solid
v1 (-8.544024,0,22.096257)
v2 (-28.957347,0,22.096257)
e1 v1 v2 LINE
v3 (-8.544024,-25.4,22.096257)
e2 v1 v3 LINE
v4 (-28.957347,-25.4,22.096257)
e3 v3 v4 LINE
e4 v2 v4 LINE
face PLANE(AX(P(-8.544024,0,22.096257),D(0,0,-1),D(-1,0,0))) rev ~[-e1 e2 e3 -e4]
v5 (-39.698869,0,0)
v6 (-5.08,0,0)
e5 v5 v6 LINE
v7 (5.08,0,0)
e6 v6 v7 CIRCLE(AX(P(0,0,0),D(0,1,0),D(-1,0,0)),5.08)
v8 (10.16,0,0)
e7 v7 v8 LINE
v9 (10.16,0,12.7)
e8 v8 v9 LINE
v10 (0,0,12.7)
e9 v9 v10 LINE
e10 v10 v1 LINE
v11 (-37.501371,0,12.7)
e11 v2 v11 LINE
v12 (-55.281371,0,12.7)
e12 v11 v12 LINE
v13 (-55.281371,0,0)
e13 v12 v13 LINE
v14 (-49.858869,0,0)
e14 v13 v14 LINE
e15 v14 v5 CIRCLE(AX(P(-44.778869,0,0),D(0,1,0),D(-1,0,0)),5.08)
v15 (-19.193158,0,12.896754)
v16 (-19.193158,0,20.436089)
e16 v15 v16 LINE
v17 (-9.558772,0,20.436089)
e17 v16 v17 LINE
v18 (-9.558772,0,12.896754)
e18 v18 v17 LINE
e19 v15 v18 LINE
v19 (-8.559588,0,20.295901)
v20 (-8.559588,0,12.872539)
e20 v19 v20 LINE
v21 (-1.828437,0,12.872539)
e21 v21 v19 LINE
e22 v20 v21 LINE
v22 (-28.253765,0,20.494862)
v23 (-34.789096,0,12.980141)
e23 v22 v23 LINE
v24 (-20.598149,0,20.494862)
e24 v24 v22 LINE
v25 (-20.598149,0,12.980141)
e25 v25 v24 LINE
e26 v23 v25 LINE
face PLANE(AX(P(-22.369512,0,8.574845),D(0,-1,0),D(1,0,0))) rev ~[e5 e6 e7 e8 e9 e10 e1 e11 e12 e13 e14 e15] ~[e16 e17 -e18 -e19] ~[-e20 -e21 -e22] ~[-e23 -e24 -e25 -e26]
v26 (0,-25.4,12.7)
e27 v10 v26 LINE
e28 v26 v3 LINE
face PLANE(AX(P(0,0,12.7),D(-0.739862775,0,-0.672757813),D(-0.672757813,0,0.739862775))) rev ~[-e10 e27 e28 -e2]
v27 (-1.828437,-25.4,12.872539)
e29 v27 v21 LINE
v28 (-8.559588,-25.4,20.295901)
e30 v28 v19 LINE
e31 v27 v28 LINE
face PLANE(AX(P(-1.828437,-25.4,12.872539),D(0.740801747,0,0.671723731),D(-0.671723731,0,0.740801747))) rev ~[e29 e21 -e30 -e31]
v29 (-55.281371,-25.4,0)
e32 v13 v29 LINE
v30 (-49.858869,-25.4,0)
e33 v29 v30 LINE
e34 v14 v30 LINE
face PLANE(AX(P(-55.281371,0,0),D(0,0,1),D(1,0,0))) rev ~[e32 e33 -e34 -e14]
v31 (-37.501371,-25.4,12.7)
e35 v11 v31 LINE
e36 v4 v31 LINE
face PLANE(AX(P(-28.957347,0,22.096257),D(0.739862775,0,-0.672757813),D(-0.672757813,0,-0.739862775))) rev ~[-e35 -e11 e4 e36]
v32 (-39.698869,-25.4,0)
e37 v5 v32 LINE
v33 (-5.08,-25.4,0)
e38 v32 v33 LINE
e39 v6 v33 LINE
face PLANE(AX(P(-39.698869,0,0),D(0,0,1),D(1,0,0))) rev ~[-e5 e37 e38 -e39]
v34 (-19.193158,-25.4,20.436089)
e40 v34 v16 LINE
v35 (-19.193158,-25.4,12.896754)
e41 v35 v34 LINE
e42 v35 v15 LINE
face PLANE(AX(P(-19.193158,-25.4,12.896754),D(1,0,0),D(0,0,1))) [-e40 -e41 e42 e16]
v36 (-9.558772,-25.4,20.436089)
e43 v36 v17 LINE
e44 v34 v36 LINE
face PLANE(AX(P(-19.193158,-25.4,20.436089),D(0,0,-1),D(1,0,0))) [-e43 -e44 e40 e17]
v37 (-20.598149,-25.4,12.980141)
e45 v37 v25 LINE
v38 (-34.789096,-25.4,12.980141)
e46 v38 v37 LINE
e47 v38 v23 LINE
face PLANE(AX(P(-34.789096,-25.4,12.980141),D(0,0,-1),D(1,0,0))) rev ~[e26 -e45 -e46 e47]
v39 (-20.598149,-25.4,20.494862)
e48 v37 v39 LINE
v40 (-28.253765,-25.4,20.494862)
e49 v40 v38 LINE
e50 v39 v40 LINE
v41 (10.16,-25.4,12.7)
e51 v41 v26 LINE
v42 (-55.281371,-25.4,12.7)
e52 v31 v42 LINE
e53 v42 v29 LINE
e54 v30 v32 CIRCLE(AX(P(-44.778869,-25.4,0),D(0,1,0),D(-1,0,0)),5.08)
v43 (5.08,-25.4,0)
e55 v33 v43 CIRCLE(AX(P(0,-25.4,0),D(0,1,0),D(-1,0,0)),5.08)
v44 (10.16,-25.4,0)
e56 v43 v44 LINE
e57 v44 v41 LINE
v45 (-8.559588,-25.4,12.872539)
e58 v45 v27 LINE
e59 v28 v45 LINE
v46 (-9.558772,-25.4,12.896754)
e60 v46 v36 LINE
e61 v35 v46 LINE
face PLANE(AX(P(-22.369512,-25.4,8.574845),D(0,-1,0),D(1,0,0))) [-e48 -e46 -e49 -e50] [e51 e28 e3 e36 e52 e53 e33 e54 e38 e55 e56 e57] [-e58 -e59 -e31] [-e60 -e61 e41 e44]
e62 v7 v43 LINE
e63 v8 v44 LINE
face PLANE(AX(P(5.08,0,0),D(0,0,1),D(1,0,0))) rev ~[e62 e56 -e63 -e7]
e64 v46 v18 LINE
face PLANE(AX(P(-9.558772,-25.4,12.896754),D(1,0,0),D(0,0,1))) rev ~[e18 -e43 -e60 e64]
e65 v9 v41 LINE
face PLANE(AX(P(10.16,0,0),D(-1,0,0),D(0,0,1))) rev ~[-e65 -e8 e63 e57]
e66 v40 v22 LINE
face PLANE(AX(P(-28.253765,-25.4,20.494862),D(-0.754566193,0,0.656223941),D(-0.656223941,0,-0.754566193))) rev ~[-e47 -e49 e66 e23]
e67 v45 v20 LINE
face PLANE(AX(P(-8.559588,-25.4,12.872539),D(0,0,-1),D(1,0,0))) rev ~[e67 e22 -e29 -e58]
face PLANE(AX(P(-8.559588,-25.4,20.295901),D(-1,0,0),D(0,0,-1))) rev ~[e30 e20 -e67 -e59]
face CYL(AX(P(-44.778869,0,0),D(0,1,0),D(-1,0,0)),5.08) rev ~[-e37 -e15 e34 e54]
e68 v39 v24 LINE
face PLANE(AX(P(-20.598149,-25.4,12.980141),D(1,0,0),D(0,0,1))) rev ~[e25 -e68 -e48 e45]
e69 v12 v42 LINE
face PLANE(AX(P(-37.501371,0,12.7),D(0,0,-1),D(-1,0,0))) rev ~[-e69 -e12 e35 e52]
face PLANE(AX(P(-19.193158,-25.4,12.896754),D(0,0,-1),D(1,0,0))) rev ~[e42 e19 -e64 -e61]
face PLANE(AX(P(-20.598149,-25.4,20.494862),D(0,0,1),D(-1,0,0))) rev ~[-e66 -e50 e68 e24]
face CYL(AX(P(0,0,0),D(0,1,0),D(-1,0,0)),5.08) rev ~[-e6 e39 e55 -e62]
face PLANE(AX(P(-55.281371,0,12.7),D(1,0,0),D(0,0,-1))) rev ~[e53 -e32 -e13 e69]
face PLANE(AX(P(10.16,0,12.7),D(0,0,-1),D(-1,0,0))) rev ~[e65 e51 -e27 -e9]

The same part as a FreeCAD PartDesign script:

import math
import FreeCAD as App
import Part
import Sketcher
Q = App.Units.Quantity

doc = App.newDocument("Part")
params = doc.addObject("Spreadsheet::Sheet", "Params")
for row, (alias, value) in enumerate([
    ("sketch1_radius", "0.2 in"),
    ("sketch1_width", "0.7 in"),
    ("sketch1_width2", "0.2 in"),
    ("sketch1_height", "0.5 in"),
    ("sketch1_length", "0.5 in"),
    ("pad1_length", "1 in"),
    ("pocket1_length", "1 in"),
    ("pocket2_length", "1 in"),
    ("pocket3_length", "1 in"),
], start=1):
    params.set(f"A{row}", alias)
    params.set(f"B{row}", "=" + value)
    params.setAlias(f"B{row}", alias)

body = doc.addObject("PartDesign::Body", "Body")

# Sketch on XZ plane
sketch1 = doc.addObject("Sketcher::SketchObject", "Sketch")
body.addObject(sketch1)
sketch1.AttachmentSupport = (doc.XZ_Plane, [""])
sketch1.MapMode = "FlatFace"
sketch1.addGeometry([
    Part.LineSegment(App.Vector(-38, 13, 0), App.Vector(-55, 13, 0)),  # 0
    Part.LineSegment(App.Vector(-55, 13, 0), App.Vector(-55, 0, 0)),  # 1
    Part.LineSegment(App.Vector(-55, 0, 0), App.Vector(-50, 0, 0)),  # 2
    Part.ArcOfCircle(Part.Circle(App.Vector(-45, 0, 0), App.Vector(0, 0, 1), 5), math.radians(0), math.radians(180)),  # 3
    Part.LineSegment(App.Vector(-40, 0, 0), App.Vector(-5, 0, 0)),  # 4
    Part.ArcOfCircle(Part.Circle(App.Vector(0, 0, 0), App.Vector(0, 0, 1), 5), math.radians(0), math.radians(180)),  # 5
    Part.LineSegment(App.Vector(5, 0, 0), App.Vector(10, 0, 0)),  # 6
    Part.LineSegment(App.Vector(10, 0, 0), App.Vector(10, 13, 0)),  # 7
    Part.LineSegment(App.Vector(10, 13, 0), App.Vector(0, 13, 0)),  # 8
    Part.LineSegment(App.Vector(0, 13, 0), App.Vector(-9, 22, 0)),  # 9
    Part.LineSegment(App.Vector(-9, 22, 0), App.Vector(-29, 22, 0)),  # 10
    Part.LineSegment(App.Vector(-29, 22, 0), App.Vector(-38, 13, 0)),  # 11
], False)
sketch1.addConstraint([
    Sketcher.Constraint("Coincident", 0, 2, 1, 1),
    Sketcher.Constraint("Coincident", 1, 2, 2, 1),
    Sketcher.Constraint("Coincident", 2, 2, 3, 2),
    Sketcher.Constraint("Coincident", 3, 1, 4, 1),
    Sketcher.Constraint("Coincident", 4, 2, 5, 2),
    Sketcher.Constraint("Coincident", 5, 1, 6, 1),
    Sketcher.Constraint("Coincident", 6, 2, 7, 1),
    Sketcher.Constraint("Coincident", 7, 2, 8, 1),
    Sketcher.Constraint("Coincident", 8, 2, 9, 1),
    Sketcher.Constraint("Coincident", 9, 2, 10, 1),
    Sketcher.Constraint("Coincident", 10, 2, 11, 1),
    Sketcher.Constraint("Coincident", 11, 2, 0, 1),
    Sketcher.Constraint("Horizontal", 0),
    Sketcher.Constraint("Vertical", 1),
    Sketcher.Constraint("Horizontal", 2),
    Sketcher.Constraint("Horizontal", 4),
    Sketcher.Constraint("Horizontal", 6),
    Sketcher.Constraint("Vertical", 7),
    Sketcher.Constraint("Horizontal", 8),
    Sketcher.Constraint("Horizontal", 10),
    Sketcher.Constraint("Coincident", 5, 3, -1, 1),
    Sketcher.Constraint("Equal", 3, 5),
    Sketcher.Constraint("PointOnObject", 3, 3, -1),
    Sketcher.Constraint("PointOnObject", 1, 2, -1),
    Sketcher.Constraint("PointOnObject", 3, 1, -1),
    Sketcher.Constraint("PointOnObject", 5, 1, -1),
    Sketcher.Constraint("PointOnObject", 8, 2, -2),
    Sketcher.Constraint("Horizontal", 0, 2, 7, 2),
    Sketcher.Constraint("Equal", 9, 11),
    Sketcher.Constraint("Radius", 3, Q("0.2 in")),
    Sketcher.Constraint("DistanceX", 0, 2, 0, 1, Q("0.7 in")),
    Sketcher.Constraint("DistanceX", 6, 1, 6, 2, Q("0.2 in")),
    Sketcher.Constraint("DistanceY", 1, 2, 1, 1, Q("0.5 in")),
    Sketcher.Constraint("Distance", 9, Q("0.5 in")),
    Sketcher.Constraint("DistanceX", 4, 1, 4, 2, 34.618869),
    Sketcher.Constraint("DistanceX", 1, 2, 3, 1, 15.582502),
    Sketcher.Constraint("DistanceX", 10, 2, 10, 1, 20.413323),
])
sketch1.setExpression("Constraints[29]", "Params.sketch1_radius")
sketch1.setExpression("Constraints[30]", "Params.sketch1_width")
sketch1.setExpression("Constraints[31]", "Params.sketch1_width2")
sketch1.setExpression("Constraints[32]", "Params.sketch1_height")
sketch1.setExpression("Constraints[33]", "Params.sketch1_length")
pad1 = doc.addObject("PartDesign::Pad", "Pad")
body.addObject(pad1)
pad1.Profile = sketch1
pad1.setExpression("Length", "Params.pad1_length")

# Sketch on XZ plane
sketch2 = doc.addObject("Sketcher::SketchObject", "Sketch001")
body.addObject(sketch2)
sketch2.AttachmentSupport = (doc.XZ_Plane, [""])
sketch2.MapMode = "FlatFace"
sketch2.AttachmentOffset = App.Placement(App.Vector(0, 0, 1 * 25.4), App.Rotation())
sketch2.addGeometry([
    Part.LineSegment(App.Vector(-28, 20, 0), App.Vector(-35, 13, 0)),
    Part.LineSegment(App.Vector(-35, 13, 0), App.Vector(-21, 13, 0)),
    Part.LineSegment(App.Vector(-21, 13, 0), App.Vector(-21, 20, 0)),
    Part.LineSegment(App.Vector(-21, 20, 0), App.Vector(-28, 20, 0)),
], False)
sketch2.addConstraint([
    Sketcher.Constraint("Coincident", 0, 2, 1, 1),
    Sketcher.Constraint("Coincident", 1, 2, 2, 1),
    Sketcher.Constraint("Coincident", 2, 2, 3, 1),
    Sketcher.Constraint("Coincident", 3, 2, 0, 1),
    Sketcher.Constraint("Horizontal", 1),
    Sketcher.Constraint("Vertical", 2),
    Sketcher.Constraint("Horizontal", 3),
    Sketcher.Constraint("DistanceY", 2, 1, 2, 2, 7.514721),
    Sketcher.Constraint("DistanceX", 1, 1, 1, 2, 14.190947),
    Sketcher.Constraint("DistanceX", 3, 2, 3, 1, 7.655616),
    Sketcher.Constraint("DistanceY", -1, 1, 0, 2, 12.980141),
    Sketcher.Constraint("DistanceX", 1, 2, -1, 1, 20.598149),
])
pocket1 = doc.addObject("PartDesign::Pocket", "Pocket")
body.addObject(pocket1)
pocket1.Profile = sketch2
pocket1.setExpression("Length", "Params.pocket1_length")

# Sketch on XZ plane
sketch3 = doc.addObject("Sketcher::SketchObject", "Sketch002")
body.addObject(sketch3)
sketch3.AttachmentSupport = (doc.XZ_Plane, [""])
sketch3.MapMode = "FlatFace"
sketch3.AttachmentOffset = App.Placement(App.Vector(0, 0, 1 * 25.4), App.Rotation())
sketch3.addGeometry([
    Part.LineSegment(App.Vector(-19, 20, 0), App.Vector(-19, 13, 0)),
    Part.LineSegment(App.Vector(-19, 13, 0), App.Vector(-10, 13, 0)),
    Part.LineSegment(App.Vector(-10, 13, 0), App.Vector(-10, 20, 0)),
    Part.LineSegment(App.Vector(-10, 20, 0), App.Vector(-19, 20, 0)),
], False)
sketch3.addConstraint([
    Sketcher.Constraint("Coincident", 0, 2, 1, 1),
    Sketcher.Constraint("Coincident", 1, 2, 2, 1),
    Sketcher.Constraint("Coincident", 2, 2, 3, 1),
    Sketcher.Constraint("Coincident", 3, 2, 0, 1),
    Sketcher.Constraint("Vertical", 0),
    Sketcher.Constraint("Horizontal", 1),
    Sketcher.Constraint("Vertical", 2),
    Sketcher.Constraint("Horizontal", 3),
    Sketcher.Constraint("DistanceX", 1, 1, 1, 2, 9.634385),
    Sketcher.Constraint("DistanceY", 0, 2, 0, 1, 7.539335),
    Sketcher.Constraint("DistanceY", -1, 1, 2, 2, 20.436089),
    Sketcher.Constraint("DistanceX", 0, 2, -1, 1, 19.193158),
])
pocket2 = doc.addObject("PartDesign::Pocket", "Pocket001")
body.addObject(pocket2)
pocket2.Profile = sketch3
pocket2.setExpression("Length", "Params.pocket2_length")

# Sketch on XZ plane
sketch4 = doc.addObject("Sketcher::SketchObject", "Sketch003")
body.addObject(sketch4)
sketch4.AttachmentSupport = (doc.XZ_Plane, [""])
sketch4.MapMode = "FlatFace"
sketch4.AttachmentOffset = App.Placement(App.Vector(0, 0, 1 * 25.4), App.Rotation())
sketch4.addGeometry([
    Part.LineSegment(App.Vector(-2, 13, 0), App.Vector(-9, 20, 0)),
    Part.LineSegment(App.Vector(-9, 20, 0), App.Vector(-9, 13, 0)),
    Part.LineSegment(App.Vector(-9, 13, 0), App.Vector(-2, 13, 0)),
], False)
sketch4.addConstraint([
    Sketcher.Constraint("Coincident", 0, 2, 1, 1),
    Sketcher.Constraint("Coincident", 1, 2, 2, 1),
    Sketcher.Constraint("Coincident", 2, 2, 0, 1),
    Sketcher.Constraint("Vertical", 1),
    Sketcher.Constraint("Horizontal", 2),
    Sketcher.Constraint("DistanceX", 2, 1, 2, 2, 6.731151),
    Sketcher.Constraint("DistanceY", -1, 1, 0, 2, 20.295901),
    Sketcher.Constraint("DistanceY", 1, 2, 1, 1, 7.423362),
    Sketcher.Constraint("DistanceX", 0, 2, -1, 1, 8.559588),
])
pocket3 = doc.addObject("PartDesign::Pocket", "Pocket002")
body.addObject(pocket3)
pocket3.Profile = sketch4
pocket3.setExpression("Length", "Params.pocket3_length")

doc.recompute()
